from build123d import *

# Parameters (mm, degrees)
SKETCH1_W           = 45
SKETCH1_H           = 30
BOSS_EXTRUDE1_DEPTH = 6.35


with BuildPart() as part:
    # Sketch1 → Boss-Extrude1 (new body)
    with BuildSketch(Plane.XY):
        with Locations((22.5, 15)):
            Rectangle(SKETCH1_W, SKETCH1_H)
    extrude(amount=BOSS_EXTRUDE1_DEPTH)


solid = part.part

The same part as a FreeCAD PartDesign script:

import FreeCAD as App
import Part
import Sketcher
Q = App.Units.Quantity

doc = App.newDocument("Part")
params = doc.addObject("Spreadsheet::Sheet", "Params")
for row, (alias, value) in enumerate([
    ("sketch1_width", "45 mm"),
    ("sketch1_height", "30 mm"),
    ("pad1_length", "6.35 mm"),
], start=1):
    params.set(f"A{row}", alias)
    params.set(f"B{row}", "=" + value)
    params.setAlias(f"B{row}", alias)

body = doc.addObject("PartDesign::Body", "Body")

# Sketch on XY plane
sketch1 = body.newObject("Sketcher::SketchObject", "Sketch")
sketch1.AttachmentSupport = (doc.getObject("XY_Plane"), [""])
sketch1.MapMode = "FlatFace"
sketch1.addGeometry(Part.LineSegment(App.Vector(0, 30, 0), App.Vector(0, 0, 0)), False)
sketch1.addGeometry(Part.LineSegment(App.Vector(0, 0, 0), App.Vector(45, 0, 0)), False)
sketch1.addGeometry(Part.LineSegment(App.Vector(45, 0, 0), App.Vector(45, 30, 0)), False)
sketch1.addGeometry(Part.LineSegment(App.Vector(45, 30, 0), App.Vector(0, 30, 0)), False)
sketch1.addConstraint(Sketcher.Constraint("Coincident", 0, 2, 1, 1))
sketch1.addConstraint(Sketcher.Constraint("Coincident", 1, 2, 2, 1))
sketch1.addConstraint(Sketcher.Constraint("Coincident", 2, 2, 3, 1))
sketch1.addConstraint(Sketcher.Constraint("Coincident", 3, 2, 0, 1))
sketch1.addConstraint(Sketcher.Constraint("Vertical", 0))
sketch1.addConstraint(Sketcher.Constraint("Horizontal", 1))
sketch1.addConstraint(Sketcher.Constraint("Vertical", 2))
sketch1.addConstraint(Sketcher.Constraint("Horizontal", 3))
sketch1.addConstraint(Sketcher.Constraint("Coincident", 0, 2, -1, 1))
sketch1.addConstraint(Sketcher.Constraint("DistanceX", 1, 1, 1, 2, Q("45 mm")))
sketch1.addConstraint(Sketcher.Constraint("DistanceY", 0, 2, 0, 1, Q("30 mm")))
sketch1.setExpression("Constraints[9]", "Params.sketch1_width")
sketch1.setExpression("Constraints[10]", "Params.sketch1_height")
pad1 = body.newObject("PartDesign::Pad", "Pad")
pad1.Profile = sketch1
pad1.setExpression("Length", "Params.pad1_length")

doc.recompute()
